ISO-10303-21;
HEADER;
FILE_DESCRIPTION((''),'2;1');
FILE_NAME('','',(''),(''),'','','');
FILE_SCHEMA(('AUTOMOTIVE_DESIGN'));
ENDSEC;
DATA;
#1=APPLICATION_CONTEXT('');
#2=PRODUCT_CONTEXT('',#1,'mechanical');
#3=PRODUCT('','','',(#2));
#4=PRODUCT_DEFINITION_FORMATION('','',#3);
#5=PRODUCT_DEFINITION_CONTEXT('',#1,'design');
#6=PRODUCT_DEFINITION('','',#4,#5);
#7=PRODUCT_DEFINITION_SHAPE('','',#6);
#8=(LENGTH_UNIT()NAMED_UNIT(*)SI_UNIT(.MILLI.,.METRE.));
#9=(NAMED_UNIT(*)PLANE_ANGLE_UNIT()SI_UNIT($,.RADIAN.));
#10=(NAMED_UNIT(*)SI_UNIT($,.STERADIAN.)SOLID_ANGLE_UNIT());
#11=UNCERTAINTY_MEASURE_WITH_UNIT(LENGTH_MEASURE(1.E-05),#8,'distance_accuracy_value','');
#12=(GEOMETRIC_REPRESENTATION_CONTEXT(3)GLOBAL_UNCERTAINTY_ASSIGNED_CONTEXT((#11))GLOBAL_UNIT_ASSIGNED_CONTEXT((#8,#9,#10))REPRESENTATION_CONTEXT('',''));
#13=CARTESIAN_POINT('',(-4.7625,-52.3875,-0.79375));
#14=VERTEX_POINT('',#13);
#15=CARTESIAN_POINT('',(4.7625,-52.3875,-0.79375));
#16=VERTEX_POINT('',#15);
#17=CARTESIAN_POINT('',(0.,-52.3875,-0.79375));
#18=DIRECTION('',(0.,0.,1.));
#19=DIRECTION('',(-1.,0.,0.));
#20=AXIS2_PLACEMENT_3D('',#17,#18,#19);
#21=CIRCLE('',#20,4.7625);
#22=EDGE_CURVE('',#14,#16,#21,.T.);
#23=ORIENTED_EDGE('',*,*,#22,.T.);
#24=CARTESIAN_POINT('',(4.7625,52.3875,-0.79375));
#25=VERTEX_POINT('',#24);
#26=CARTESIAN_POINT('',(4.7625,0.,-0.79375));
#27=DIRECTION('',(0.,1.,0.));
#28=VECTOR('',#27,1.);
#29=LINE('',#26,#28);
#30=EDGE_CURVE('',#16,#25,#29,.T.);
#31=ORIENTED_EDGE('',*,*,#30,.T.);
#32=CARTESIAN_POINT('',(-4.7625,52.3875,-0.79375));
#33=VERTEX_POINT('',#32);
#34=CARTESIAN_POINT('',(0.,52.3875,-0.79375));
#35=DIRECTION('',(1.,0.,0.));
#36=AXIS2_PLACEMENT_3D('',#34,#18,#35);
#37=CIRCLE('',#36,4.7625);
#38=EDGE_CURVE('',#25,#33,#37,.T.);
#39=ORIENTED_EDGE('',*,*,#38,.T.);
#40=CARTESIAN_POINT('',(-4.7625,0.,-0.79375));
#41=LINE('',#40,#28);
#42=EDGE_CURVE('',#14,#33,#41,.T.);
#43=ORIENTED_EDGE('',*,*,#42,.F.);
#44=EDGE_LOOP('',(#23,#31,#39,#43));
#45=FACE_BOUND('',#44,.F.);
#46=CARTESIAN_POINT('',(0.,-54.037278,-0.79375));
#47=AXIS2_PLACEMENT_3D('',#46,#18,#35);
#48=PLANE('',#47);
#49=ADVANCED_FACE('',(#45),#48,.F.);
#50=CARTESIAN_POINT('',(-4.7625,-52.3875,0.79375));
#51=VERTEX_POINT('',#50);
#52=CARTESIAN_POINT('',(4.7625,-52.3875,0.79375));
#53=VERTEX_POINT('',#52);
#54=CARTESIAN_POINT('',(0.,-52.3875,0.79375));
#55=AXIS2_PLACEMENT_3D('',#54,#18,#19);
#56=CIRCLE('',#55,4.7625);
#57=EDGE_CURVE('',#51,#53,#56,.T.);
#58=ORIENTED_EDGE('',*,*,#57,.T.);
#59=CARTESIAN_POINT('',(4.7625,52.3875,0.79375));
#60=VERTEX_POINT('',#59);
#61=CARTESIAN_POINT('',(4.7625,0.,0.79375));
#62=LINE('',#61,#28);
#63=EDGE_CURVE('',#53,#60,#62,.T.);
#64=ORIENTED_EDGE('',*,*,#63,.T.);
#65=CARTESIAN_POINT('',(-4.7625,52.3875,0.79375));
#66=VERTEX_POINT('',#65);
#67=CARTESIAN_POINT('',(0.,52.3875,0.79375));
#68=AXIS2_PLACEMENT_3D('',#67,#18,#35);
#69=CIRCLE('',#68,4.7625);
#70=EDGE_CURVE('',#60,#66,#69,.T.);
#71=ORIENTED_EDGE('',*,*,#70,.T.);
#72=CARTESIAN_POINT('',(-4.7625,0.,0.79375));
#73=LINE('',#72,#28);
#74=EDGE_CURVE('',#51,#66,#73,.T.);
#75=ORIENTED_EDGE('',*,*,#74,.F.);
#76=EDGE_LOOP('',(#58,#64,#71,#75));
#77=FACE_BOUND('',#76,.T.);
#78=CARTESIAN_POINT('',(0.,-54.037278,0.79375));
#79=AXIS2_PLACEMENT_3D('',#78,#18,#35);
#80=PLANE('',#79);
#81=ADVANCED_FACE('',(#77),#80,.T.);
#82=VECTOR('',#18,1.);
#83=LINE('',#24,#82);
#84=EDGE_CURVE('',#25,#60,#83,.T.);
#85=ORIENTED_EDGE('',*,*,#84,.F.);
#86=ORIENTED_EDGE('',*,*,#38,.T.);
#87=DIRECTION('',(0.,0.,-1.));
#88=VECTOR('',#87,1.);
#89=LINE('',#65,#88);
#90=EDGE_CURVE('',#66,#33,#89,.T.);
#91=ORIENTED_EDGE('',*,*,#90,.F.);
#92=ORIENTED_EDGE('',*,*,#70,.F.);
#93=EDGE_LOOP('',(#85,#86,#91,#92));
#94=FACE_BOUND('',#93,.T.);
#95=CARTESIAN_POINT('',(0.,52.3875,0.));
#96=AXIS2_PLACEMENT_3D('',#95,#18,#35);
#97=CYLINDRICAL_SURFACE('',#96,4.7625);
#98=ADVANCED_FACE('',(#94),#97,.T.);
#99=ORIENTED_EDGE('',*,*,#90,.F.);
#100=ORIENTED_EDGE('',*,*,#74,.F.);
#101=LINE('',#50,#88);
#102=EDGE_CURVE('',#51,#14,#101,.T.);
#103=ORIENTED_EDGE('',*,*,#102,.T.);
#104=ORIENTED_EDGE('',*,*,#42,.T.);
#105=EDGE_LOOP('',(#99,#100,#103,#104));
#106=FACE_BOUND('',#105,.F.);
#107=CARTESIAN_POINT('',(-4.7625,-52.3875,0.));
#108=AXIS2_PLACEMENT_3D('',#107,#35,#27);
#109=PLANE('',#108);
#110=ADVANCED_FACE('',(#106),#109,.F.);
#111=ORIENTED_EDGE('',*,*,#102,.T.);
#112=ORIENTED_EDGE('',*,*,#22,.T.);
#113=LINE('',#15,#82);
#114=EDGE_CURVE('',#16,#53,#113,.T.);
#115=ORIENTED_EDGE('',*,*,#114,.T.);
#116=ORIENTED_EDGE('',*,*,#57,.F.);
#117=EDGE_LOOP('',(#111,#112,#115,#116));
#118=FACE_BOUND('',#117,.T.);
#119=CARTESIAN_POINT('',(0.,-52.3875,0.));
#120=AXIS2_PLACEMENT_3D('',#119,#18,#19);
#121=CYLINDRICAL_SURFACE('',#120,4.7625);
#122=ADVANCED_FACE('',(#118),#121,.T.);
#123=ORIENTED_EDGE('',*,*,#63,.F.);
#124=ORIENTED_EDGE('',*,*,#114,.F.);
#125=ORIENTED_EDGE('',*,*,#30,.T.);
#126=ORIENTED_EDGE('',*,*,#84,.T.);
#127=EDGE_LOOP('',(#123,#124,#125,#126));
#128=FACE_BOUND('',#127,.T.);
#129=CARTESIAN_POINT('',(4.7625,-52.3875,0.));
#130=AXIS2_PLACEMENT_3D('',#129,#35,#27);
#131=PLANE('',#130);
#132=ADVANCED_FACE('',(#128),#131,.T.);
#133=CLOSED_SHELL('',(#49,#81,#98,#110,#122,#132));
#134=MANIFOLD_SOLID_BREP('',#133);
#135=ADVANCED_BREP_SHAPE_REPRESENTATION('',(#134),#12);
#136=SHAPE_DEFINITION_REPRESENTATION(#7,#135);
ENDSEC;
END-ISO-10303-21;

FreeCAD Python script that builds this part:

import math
import FreeCAD as App
import Part
import Sketcher
Q = App.Units.Quantity

doc = App.newDocument("Part")
params = doc.addObject("Spreadsheet::Sheet", "Params")
for row, (alias, value) in enumerate([
    ("sketch1_radius", "0.1875 in"),
    ("sketch1_height", "4.125 in"),
    ("pad1_length", "0.0625 in"),
], start=1):
    params.set(f"A{row}", alias)
    params.set(f"B{row}", "=" + value)
    params.setAlias(f"B{row}", alias)

body = doc.addObject("PartDesign::Body", "Body")

# Sketch on XY plane
sketch1 = body.newObject("Sketcher::SketchObject", "Sketch")
sketch1.AttachmentSupport = (doc.getObject("XY_Plane"), [""])
sketch1.MapMode = "FlatFace"
sketch1.addGeometry(Part.ArcOfCircle(Part.Circle(App.Vector(0, -52.4, 0), App.Vector(0, 0, 1), 4.8), math.radians(180), math.radians(360)), False)
sketch1.addGeometry(Part.LineSegment(App.Vector(4.8, -52.4, 0), App.Vector(4.8, 52.4, 0)), False)
sketch1.addGeometry(Part.ArcOfCircle(Part.Circle(App.Vector(0, 52.4, 0), App.Vector(0, 0, 1), 4.8), math.radians(0), math.radians(180)), False)
sketch1.addGeometry(Part.LineSegment(App.Vector(-4.8, 52.4, 0), App.Vector(-4.8, -52.4, 0)), False)
sketch1.addConstraint(Sketcher.Constraint("Tangent", 0, 2, 1, 1))
sketch1.addConstraint(Sketcher.Constraint("Tangent", 1, 2, 2, 1))
sketch1.addConstraint(Sketcher.Constraint("Tangent", 2, 2, 3, 1))
sketch1.addConstraint(Sketcher.Constraint("Tangent", 3, 2, 0, 1))
sketch1.addConstraint(Sketcher.Constraint("Vertical", 1))
sketch1.addConstraint(Sketcher.Constraint("Vertical", 3))
sketch1.addConstraint(Sketcher.Constraint("Symmetric", 0, 3, 2, 3, -1, 1))
sketch1.addConstraint(Sketcher.Constraint("Radius", 0, Q("0.1875 in")))
sketch1.addConstraint(Sketcher.Constraint("DistanceY", 1, 1, 1, 2, Q("4.125 in")))
sketch1.setExpression("Constraints[7]", "Params.sketch1_radius")
sketch1.setExpression("Constraints[8]", "Params.sketch1_height")
pad1 = body.newObject("PartDesign::Pad", "Pad")
pad1.Profile = sketch1
pad1.setExpression("Length", "Params.pad1_length")
pad1.Midplane = True

doc.recompute()
